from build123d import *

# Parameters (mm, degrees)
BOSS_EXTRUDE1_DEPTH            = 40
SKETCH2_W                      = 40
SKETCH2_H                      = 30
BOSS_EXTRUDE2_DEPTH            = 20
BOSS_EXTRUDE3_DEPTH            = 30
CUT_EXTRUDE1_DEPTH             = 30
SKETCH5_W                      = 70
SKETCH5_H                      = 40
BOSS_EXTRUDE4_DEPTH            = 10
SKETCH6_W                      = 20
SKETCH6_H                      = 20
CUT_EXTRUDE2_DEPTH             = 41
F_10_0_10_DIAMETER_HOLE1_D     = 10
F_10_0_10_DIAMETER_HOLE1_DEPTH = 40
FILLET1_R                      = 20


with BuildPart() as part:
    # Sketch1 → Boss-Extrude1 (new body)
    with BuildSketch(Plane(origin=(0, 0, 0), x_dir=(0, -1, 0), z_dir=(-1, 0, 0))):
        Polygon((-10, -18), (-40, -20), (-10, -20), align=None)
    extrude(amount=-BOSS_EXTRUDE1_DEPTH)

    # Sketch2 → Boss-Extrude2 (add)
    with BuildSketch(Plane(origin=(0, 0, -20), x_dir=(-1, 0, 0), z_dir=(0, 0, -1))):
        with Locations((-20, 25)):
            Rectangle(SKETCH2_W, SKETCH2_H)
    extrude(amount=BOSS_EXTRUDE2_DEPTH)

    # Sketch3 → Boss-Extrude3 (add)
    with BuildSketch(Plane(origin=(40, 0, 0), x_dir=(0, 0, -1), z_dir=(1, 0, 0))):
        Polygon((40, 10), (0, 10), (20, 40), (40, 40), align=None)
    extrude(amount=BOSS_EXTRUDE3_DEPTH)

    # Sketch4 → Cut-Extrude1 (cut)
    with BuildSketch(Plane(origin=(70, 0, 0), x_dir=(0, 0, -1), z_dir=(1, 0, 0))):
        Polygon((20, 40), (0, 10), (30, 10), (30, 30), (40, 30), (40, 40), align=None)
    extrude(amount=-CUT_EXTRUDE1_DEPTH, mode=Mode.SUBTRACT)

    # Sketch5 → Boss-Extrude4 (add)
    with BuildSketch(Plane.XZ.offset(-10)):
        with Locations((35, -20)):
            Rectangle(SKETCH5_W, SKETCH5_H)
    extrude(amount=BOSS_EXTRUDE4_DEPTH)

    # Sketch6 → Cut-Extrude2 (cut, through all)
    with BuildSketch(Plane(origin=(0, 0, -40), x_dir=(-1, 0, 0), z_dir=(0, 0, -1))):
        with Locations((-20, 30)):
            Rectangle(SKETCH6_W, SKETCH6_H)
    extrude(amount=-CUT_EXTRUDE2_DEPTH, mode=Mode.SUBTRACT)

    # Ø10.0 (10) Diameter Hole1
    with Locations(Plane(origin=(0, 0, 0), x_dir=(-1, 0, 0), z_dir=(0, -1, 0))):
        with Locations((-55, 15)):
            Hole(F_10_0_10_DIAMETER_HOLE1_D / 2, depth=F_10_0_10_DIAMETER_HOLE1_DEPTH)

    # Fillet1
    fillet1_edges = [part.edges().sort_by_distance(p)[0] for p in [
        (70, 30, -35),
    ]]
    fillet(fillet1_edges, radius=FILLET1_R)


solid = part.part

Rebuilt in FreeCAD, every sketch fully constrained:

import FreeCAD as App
import Part
import Sketcher
from FreeCAD import Vector
Q = App.Units.Quantity


def edges_at(feature, points):
    """Names of the edges that pass closest to the given points."""
    edges = feature.Shape.Edges
    near = lambda p: min(range(len(edges)), key=lambda i: edges[i].distToShape(Part.Vertex(*p))[0])
    return sorted({f"Edge{near(p) + 1}" for p in points})

doc = App.newDocument("Part")
body = doc.addObject("PartDesign::Body", "Body")

# Sketch on YZ plane
sketch1 = doc.addObject("Sketcher::SketchObject", "Sketch")
body.addObject(sketch1)
sketch1.AttachmentSupport = (doc.YZ_Plane, [""])
sketch1.MapMode = "FlatFace"
sketch1.addGeometry([
    Part.LineSegment(Vector(10, -18, 0), Vector(40, -20, 0)),
    Part.LineSegment(Vector(40, -20, 0), Vector(10, -20, 0)),
    Part.LineSegment(Vector(10, -20, 0), Vector(10, -18, 0)),
], False)
sketch1.addConstraint([
    Sketcher.Constraint("Coincident", 0, 2, 1, 1),
    Sketcher.Constraint("Coincident", 1, 2, 2, 1),
    Sketcher.Constraint("Coincident", 2, 2, 0, 1),
    Sketcher.Constraint("Horizontal", 1),
    Sketcher.Constraint("Vertical", 2),
    Sketcher.Constraint("DistanceX", 1, 2, 1, 1, Q("30 mm")),
    Sketcher.Constraint("DistanceY", 2, 1, 2, 2, Q("2 mm")),
    Sketcher.Constraint("DistanceX", -1, 1, 0, 2, Q("40 mm")),
    Sketcher.Constraint("DistanceY", 0, 2, -1, 1, Q("20 mm")),
])
pad1 = doc.addObject("PartDesign::Pad", "Pad")
body.addObject(pad1)
pad1.Profile = sketch1
pad1.Length = 40

# Sketch on XY plane
sketch2 = doc.addObject("Sketcher::SketchObject", "Sketch001")
body.addObject(sketch2)
sketch2.AttachmentSupport = (doc.XY_Plane, [""])
sketch2.MapMode = "FlatFace"
sketch2.AttachmentOffset = App.Placement(Vector(0, 0, -20), App.Rotation())
sketch2.addGeometry([
    Part.LineSegment(Vector(40, 40, 0), Vector(40, 10, 0)),
    Part.LineSegment(Vector(40, 10, 0), Vector(0, 10, 0)),
    Part.LineSegment(Vector(0, 10, 0), Vector(0, 40, 0)),
    Part.LineSegment(Vector(0, 40, 0), Vector(40, 40, 0)),
], False)
sketch2.addConstraint([
    Sketcher.Constraint("Coincident", 0, 2, 1, 1),
    Sketcher.Constraint("Coincident", 1, 2, 2, 1),
    Sketcher.Constraint("Coincident", 2, 2, 3, 1),
    Sketcher.Constraint("Coincident", 3, 2, 0, 1),
    Sketcher.Constraint("Vertical", 0),
    Sketcher.Constraint("Horizontal", 1),
    Sketcher.Constraint("Vertical", 2),
    Sketcher.Constraint("Horizontal", 3),
    Sketcher.Constraint("PointOnObject", 1, 2, -2),
    Sketcher.Constraint("DistanceX", 1, 2, 1, 1, Q("40 mm")),
    Sketcher.Constraint("DistanceY", 0, 2, 0, 1, Q("30 mm")),
    Sketcher.Constraint("DistanceY", -1, 1, 0, 2, Q("10 mm")),
])
pad2 = doc.addObject("PartDesign::Pad", "Pad001")
body.addObject(pad2)
pad2.Profile = sketch2
pad2.Length = 20
pad2.Reversed = True

# Sketch on YZ plane
sketch3 = doc.addObject("Sketcher::SketchObject", "Sketch002")
body.addObject(sketch3)
sketch3.AttachmentSupport = (doc.YZ_Plane, [""])
sketch3.MapMode = "FlatFace"
sketch3.AttachmentOffset = App.Placement(Vector(0, 0, 40), App.Rotation())
sketch3.addGeometry([
    Part.LineSegment(Vector(10, 0, 0), Vector(10, -40, 0)),
    Part.LineSegment(Vector(10, -40, 0), Vector(40, -40, 0)),
    Part.LineSegment(Vector(40, -40, 0), Vector(40, -20, 0)),
    Part.LineSegment(Vector(40, -20, 0), Vector(10, 0, 0)),
], False)
sketch3.addConstraint([
    Sketcher.Constraint("Coincident", 0, 2, 1, 1),
    Sketcher.Constraint("Coincident", 1, 2, 2, 1),
    Sketcher.Constraint("Coincident", 2, 2, 3, 1),
    Sketcher.Constraint("Coincident", 3, 2, 0, 1),
    Sketcher.Constraint("Vertical", 0),
    Sketcher.Constraint("Horizontal", 1),
    Sketcher.Constraint("Vertical", 2),
    Sketcher.Constraint("PointOnObject", 3, 2, -1),
    Sketcher.Constraint("DistanceX", 1, 1, 1, 2, Q("30 mm")),
    Sketcher.Constraint("DistanceY", 0, 2, 0, 1, Q("40 mm")),
    Sketcher.Constraint("DistanceY", 2, 1, 2, 2, Q("20 mm")),
    Sketcher.Constraint("DistanceX", -1, 1, 0, 2, Q("10 mm")),
])
pad3 = doc.addObject("PartDesign::Pad", "Pad002")
body.addObject(pad3)
pad3.Profile = sketch3
pad3.Length = 30

# Sketch on YZ plane
sketch4 = doc.addObject("Sketcher::SketchObject", "Sketch003")
body.addObject(sketch4)
sketch4.AttachmentSupport = (doc.YZ_Plane, [""])
sketch4.MapMode = "FlatFace"
sketch4.AttachmentOffset = App.Placement(Vector(0, 0, 70), App.Rotation())
sketch4.addGeometry([
    Part.LineSegment(Vector(40, -20, 0), Vector(10, 0, 0)),  # 0
    Part.LineSegment(Vector(10, 0, 0), Vector(10, -30, 0)),  # 1
    Part.LineSegment(Vector(10, -30, 0), Vector(30, -30, 0)),  # 2
    Part.LineSegment(Vector(30, -30, 0), Vector(30, -40, 0)),  # 3
    Part.LineSegment(Vector(30, -40, 0), Vector(40, -40, 0)),  # 4
    Part.LineSegment(Vector(40, -40, 0), Vector(40, -20, 0)),  # 5
], False)
sketch4.addConstraint([
    Sketcher.Constraint("Coincident", 0, 2, 1, 1),
    Sketcher.Constraint("Coincident", 1, 2, 2, 1),
    Sketcher.Constraint("Coincident", 2, 2, 3, 1),
    Sketcher.Constraint("Coincident", 3, 2, 4, 1),
    Sketcher.Constraint("Coincident", 4, 2, 5, 1),
    Sketcher.Constraint("Coincident", 5, 2, 0, 1),
    Sketcher.Constraint("Vertical", 1),
    Sketcher.Constraint("Horizontal", 2),
    Sketcher.Constraint("Vertical", 3),
    Sketcher.Constraint("Horizontal", 4),
    Sketcher.Constraint("Vertical", 5),
    Sketcher.Constraint("PointOnObject", 0, 2, -1),
    Sketcher.Constraint("Equal", 4, 3),
    Sketcher.Constraint("Equal", 2, 5),
    Sketcher.Constraint("DistanceX", 2, 1, 2, 2, Q("20 mm")),
    Sketcher.Constraint("DistanceX", 4, 1, 4, 2, Q("10 mm")),
    Sketcher.Constraint("DistanceY", 1, 2, 1, 1, Q("30 mm")),
    Sketcher.Constraint("DistanceX", -1, 1, 0, 2, Q("10 mm")),
])
pocket1 = doc.addObject("PartDesign::Pocket", "Pocket")
body.addObject(pocket1)
pocket1.Profile = sketch4
pocket1.Length = 30

# Sketch on XZ plane
sketch5 = doc.addObject("Sketcher::SketchObject", "Sketch004")
body.addObject(sketch5)
sketch5.AttachmentSupport = (doc.XZ_Plane, [""])
sketch5.MapMode = "FlatFace"
sketch5.AttachmentOffset = App.Placement(Vector(0, 0, -10), App.Rotation())
sketch5.addGeometry([
    Part.LineSegment(Vector(0, 0, 0), Vector(0, -40, 0)),
    Part.LineSegment(Vector(0, -40, 0), Vector(70, -40, 0)),
    Part.LineSegment(Vector(70, -40, 0), Vector(70, 0, 0)),
    Part.LineSegment(Vector(70, 0, 0), Vector(0, 0, 0)),
], False)
sketch5.addConstraint([
    Sketcher.Constraint("Coincident", 0, 2, 1, 1),
    Sketcher.Constraint("Coincident", 1, 2, 2, 1),
    Sketcher.Constraint("Coincident", 2, 2, 3, 1),
    Sketcher.Constraint("Coincident", 3, 2, 0, 1),
    Sketcher.Constraint("Vertical", 0),
    Sketcher.Constraint("Horizontal", 1),
    Sketcher.Constraint("Vertical", 2),
    Sketcher.Constraint("Horizontal", 3),
    Sketcher.Constraint("Coincident", 3, 2, -1, 1),
    Sketcher.Constraint("DistanceX", 1, 1, 1, 2, Q("70 mm")),
    Sketcher.Constraint("DistanceY", 0, 2, 0, 1, Q("40 mm")),
])
pad4 = doc.addObject("PartDesign::Pad", "Pad003")
body.addObject(pad4)
pad4.Profile = sketch5
pad4.Length = 10

# Sketch on XY plane
sketch6 = doc.addObject("Sketcher::SketchObject", "Sketch005")
body.addObject(sketch6)
sketch6.AttachmentSupport = (doc.XY_Plane, [""])
sketch6.MapMode = "FlatFace"
sketch6.AttachmentOffset = App.Placement(Vector(0, 0, -40), App.Rotation())
sketch6.addGeometry([
    Part.LineSegment(Vector(30, 40, 0), Vector(30, 20, 0)),
    Part.LineSegment(Vector(30, 20, 0), Vector(10, 20, 0)),
    Part.LineSegment(Vector(10, 20, 0), Vector(10, 40, 0)),
    Part.LineSegment(Vector(10, 40, 0), Vector(30, 40, 0)),
], False)
sketch6.addConstraint([
    Sketcher.Constraint("Coincident", 0, 2, 1, 1),
    Sketcher.Constraint("Coincident", 1, 2, 2, 1),
    Sketcher.Constraint("Coincident", 2, 2, 3, 1),
    Sketcher.Constraint("Coincident", 3, 2, 0, 1),
    Sketcher.Constraint("Vertical", 0),
    Sketcher.Constraint("Horizontal", 1),
    Sketcher.Constraint("Vertical", 2),
    Sketcher.Constraint("Horizontal", 3),
    Sketcher.Constraint("Equal", 3, 0),
    Sketcher.Constraint("DistanceX", 1, 2, 1, 1, Q("20 mm")),
    Sketcher.Constraint("DistanceX", -1, 1, 0, 2, Q("30 mm")),
    Sketcher.Constraint("DistanceY", -1, 1, 0, 2, Q("20 mm")),
])
pocket2 = doc.addObject("PartDesign::Pocket", "Pocket001")
body.addObject(pocket2)
pocket2.Profile = sketch6
pocket2.Type = "ThroughAll"
pocket2.Reversed = True

# Sketch on XZ plane
sketch7 = doc.addObject("Sketcher::SketchObject", "Sketch006")
body.addObject(sketch7)
sketch7.AttachmentSupport = (doc.XZ_Plane, [""])
sketch7.MapMode = "FlatFace"
sketch7.addGeometry(Part.Circle(Vector(55, -15, 0), Vector(0, 0, 1), 5), False)
sketch7.addConstraint([
    Sketcher.Constraint("Diameter", 0, Q("10 mm")),
    Sketcher.Constraint("DistanceX", -1, 1, 0, 3, Q("55 mm")),
    Sketcher.Constraint("DistanceY", 0, 3, -1, 1, Q("15 mm")),
])
doc.recompute()
hole = doc.addObject("PartDesign::Hole", "Hole")
body.addObject(hole)
hole.Profile = sketch7
hole.ThreadType = "None"
hole.Diameter = 10
hole.DepthType = "Dimension"
hole.Depth = 40
hole.DrillPoint = "Flat"
doc.recompute()

fillet = doc.addObject("PartDesign::Fillet", "Fillet")
body.addObject(fillet)
fillet.Base = (hole, edges_at(hole, [(70, 30, -35)]))
fillet.Radius = 20

doc.recompute()
